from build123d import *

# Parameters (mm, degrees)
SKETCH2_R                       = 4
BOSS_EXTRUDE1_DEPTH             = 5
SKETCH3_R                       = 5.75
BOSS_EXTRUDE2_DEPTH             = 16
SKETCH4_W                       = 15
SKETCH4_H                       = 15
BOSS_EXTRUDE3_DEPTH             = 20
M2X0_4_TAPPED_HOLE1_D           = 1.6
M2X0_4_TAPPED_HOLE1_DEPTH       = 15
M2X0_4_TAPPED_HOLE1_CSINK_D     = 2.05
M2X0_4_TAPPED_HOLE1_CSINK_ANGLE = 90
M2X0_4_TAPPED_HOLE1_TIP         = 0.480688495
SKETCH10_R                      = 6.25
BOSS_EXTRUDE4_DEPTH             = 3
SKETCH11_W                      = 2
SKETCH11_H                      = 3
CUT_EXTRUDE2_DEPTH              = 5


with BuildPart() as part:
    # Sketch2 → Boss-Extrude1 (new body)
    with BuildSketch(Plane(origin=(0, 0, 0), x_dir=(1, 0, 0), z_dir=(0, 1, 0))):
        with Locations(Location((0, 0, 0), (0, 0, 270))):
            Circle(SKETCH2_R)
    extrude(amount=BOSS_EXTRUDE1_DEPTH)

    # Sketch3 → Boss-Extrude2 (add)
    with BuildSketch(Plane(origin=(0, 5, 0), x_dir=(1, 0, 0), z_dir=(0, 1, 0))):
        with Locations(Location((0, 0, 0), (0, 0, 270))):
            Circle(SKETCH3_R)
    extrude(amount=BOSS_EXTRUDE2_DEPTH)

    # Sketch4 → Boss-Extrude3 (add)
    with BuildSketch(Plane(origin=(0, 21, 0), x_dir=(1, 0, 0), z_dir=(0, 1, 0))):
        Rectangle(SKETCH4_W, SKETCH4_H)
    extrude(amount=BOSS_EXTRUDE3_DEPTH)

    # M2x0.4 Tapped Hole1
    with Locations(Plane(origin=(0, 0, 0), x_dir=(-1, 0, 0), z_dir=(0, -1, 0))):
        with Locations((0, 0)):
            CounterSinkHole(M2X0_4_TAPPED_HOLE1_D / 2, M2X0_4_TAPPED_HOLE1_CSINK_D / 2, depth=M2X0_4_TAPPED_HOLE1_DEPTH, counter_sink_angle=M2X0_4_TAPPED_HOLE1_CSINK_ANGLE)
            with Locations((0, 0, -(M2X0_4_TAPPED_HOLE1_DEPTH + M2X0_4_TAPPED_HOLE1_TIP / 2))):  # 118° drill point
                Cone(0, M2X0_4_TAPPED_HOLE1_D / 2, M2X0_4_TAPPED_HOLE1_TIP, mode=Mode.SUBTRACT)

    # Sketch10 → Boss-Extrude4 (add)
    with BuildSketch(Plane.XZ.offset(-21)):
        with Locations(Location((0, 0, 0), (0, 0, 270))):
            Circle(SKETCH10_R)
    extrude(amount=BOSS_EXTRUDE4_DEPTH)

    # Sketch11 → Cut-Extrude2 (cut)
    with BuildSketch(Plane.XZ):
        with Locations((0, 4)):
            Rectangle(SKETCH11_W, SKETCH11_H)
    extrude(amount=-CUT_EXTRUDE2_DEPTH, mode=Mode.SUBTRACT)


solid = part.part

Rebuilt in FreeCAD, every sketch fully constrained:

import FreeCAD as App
import Part
import Sketcher

V = App.Vector


def add_polygon(sketch, points):
    """Adds a closed chain of lines whose ends are joined by coincident constraints."""
    first, n = sketch.GeometryCount, len(points)
    for a, b in zip(points, points[1:] + points[:1]):
        sketch.addGeometry(Part.LineSegment(App.Vector(*a, 0), App.Vector(*b, 0)), False)
    for i in range(n):
        sketch.addConstraint(Sketcher.Constraint("Coincident", first + i, 2, first + (i + 1) % n, 1))

doc = App.newDocument("Part")
params = doc.addObject("Spreadsheet::Sheet", "Params")
for row, (alias, value) in enumerate([
    ("sketch1_diameter", "8 mm"),
    ("pad1_length", "5 mm"),
    ("sketch2_diameter", "11.5 mm"),
    ("pad2_length", "16 mm"),
    ("sketch3_width", "15 mm"),
    ("pad3_length", "20 mm"),
    ("sketch4_diameter", "1.6 mm"),
    ("hole_diameter", "1.6 mm"),
    ("hole_depth", "15 mm"),
    ("hole_csink_diameter", "2.05 mm"),
    ("sketch5_diameter", "12.5 mm"),
    ("pad4_length", "3 mm"),
    ("sketch6_width", "2 mm"),
    ("sketch6_height", "3 mm"),
    ("pocket1_length", "5 mm"),
], start=1):
    params.set(f"A{row}", alias)
    params.set(f"B{row}", "=" + value)
    params.setAlias(f"B{row}", alias)

body = doc.addObject("PartDesign::Body", "Body")

sketch1 = body.newObject("Sketcher::SketchObject", "Sketch")
sketch1.AttachmentSupport = (doc.getObject("XZ_Plane"), [""])
sketch1.MapMode = "FlatFace"
sketch1.addGeometry(Part.Circle(V(0, 0, 0), V(0, 0, 1), 4), False)
sketch1.addConstraint(Sketcher.Constraint("Coincident", 0, 3, -1, 1))
sketch1.addConstraint(Sketcher.Constraint("Diameter", 0, 8.0))
sketch1.setExpression("Constraints[1]", "Params.sketch1_diameter")
pad1 = body.newObject("PartDesign::Pad", "Pad")
pad1.Profile = sketch1
pad1.setExpression("Length", "Params.pad1_length")
pad1.Reversed = True

sketch2 = body.newObject("Sketcher::SketchObject", "Sketch001")
sketch2.AttachmentSupport = (doc.getObject("XZ_Plane"), [""])
sketch2.MapMode = "FlatFace"
sketch2.AttachmentOffset = App.Placement(V(0, 0, -5), App.Rotation())
sketch2.addGeometry(Part.Circle(V(0, 0, 0), V(0, 0, 1), 6), False)
sketch2.addConstraint(Sketcher.Constraint("Coincident", 0, 3, -1, 1))
sketch2.addConstraint(Sketcher.Constraint("Diameter", 0, 11.5))
sketch2.setExpression("Constraints[1]", "Params.sketch2_diameter")
pad2 = body.newObject("PartDesign::Pad", "Pad001")
pad2.Profile = sketch2
pad2.setExpression("Length", "Params.pad2_length")
pad2.Reversed = True

sketch3 = body.newObject("Sketcher::SketchObject", "Sketch002")
sketch3.AttachmentSupport = (doc.getObject("XZ_Plane"), [""])
sketch3.MapMode = "FlatFace"
sketch3.AttachmentOffset = App.Placement(V(0, 0, -21), App.Rotation())
add_polygon(sketch3, [(-8, -8), (-8, 8), (8, 8), (8, -8)])
sketch3.addConstraint(Sketcher.Constraint("Vertical", 0))
sketch3.addConstraint(Sketcher.Constraint("Horizontal", 1))
sketch3.addConstraint(Sketcher.Constraint("Vertical", 2))
sketch3.addConstraint(Sketcher.Constraint("Horizontal", 3))
sketch3.addConstraint(Sketcher.Constraint("Symmetric", 0, 2, 2, 2, -1, 1))
sketch3.addConstraint(Sketcher.Constraint("Equal", 3, 0))
sketch3.addConstraint(Sketcher.Constraint("DistanceX", 1, 1, 1, 2, 15.0))
sketch3.setExpression("Constraints[10]", "Params.sketch3_width")
pad3 = body.newObject("PartDesign::Pad", "Pad002")
pad3.Profile = sketch3
pad3.setExpression("Length", "Params.pad3_length")
pad3.Reversed = True

sketch4 = body.newObject("Sketcher::SketchObject", "Sketch003")
sketch4.AttachmentSupport = (doc.getObject("XZ_Plane"), [""])
sketch4.MapMode = "FlatFace"
sketch4.addGeometry(Part.Circle(V(0, 0, 0), V(0, 0, 1), 0.8), False)
sketch4.addConstraint(Sketcher.Constraint("Coincident", 0, 3, -1, 1))
sketch4.addConstraint(Sketcher.Constraint("Diameter", 0, 1.6))
sketch4.setExpression("Constraints[1]", "Params.sketch4_diameter")
doc.recompute()
hole = body.newObject("PartDesign::Hole", "Hole")
hole.Profile = sketch4
hole.ThreadType = "None"
hole.setExpression("Diameter", "Params.hole_diameter")
hole.DepthType = "Dimension"
hole.setExpression("Depth", "Params.hole_depth")
hole.DrillPoint = "Angled"
hole.DrillPointAngle = 118
hole.HoleCutType = "Countersink"
hole.setExpression("HoleCutDiameter", "Params.hole_csink_diameter")
hole.HoleCutCountersinkAngle = 90

sketch5 = body.newObject("Sketcher::SketchObject", "Sketch004")
sketch5.AttachmentSupport = (doc.getObject("XZ_Plane"), [""])
sketch5.MapMode = "FlatFace"
sketch5.AttachmentOffset = App.Placement(V(0, 0, -21), App.Rotation())
sketch5.addGeometry(Part.Circle(V(0, 0, 0), V(0, 0, 1), 6), False)
sketch5.addConstraint(Sketcher.Constraint("Coincident", 0, 3, -1, 1))
sketch5.addConstraint(Sketcher.Constraint("Diameter", 0, 12.5))
sketch5.setExpression("Constraints[1]", "Params.sketch5_diameter")
pad4 = body.newObject("PartDesign::Pad", "Pad003")
pad4.Profile = sketch5
pad4.setExpression("Length", "Params.pad4_length")

sketch6 = body.newObject("Sketcher::SketchObject", "Sketch005")
sketch6.AttachmentSupport = (doc.getObject("XZ_Plane"), [""])
sketch6.MapMode = "FlatFace"
add_polygon(sketch6, [(-1, 5.5), (-1, 2.5), (1, 2.5), (1, 5.5)])
sketch6.addConstraint(Sketcher.Constraint("Vertical", 0))
sketch6.addConstraint(Sketcher.Constraint("Horizontal", 1))
sketch6.addConstraint(Sketcher.Constraint("Vertical", 2))
sketch6.addConstraint(Sketcher.Constraint("Horizontal", 3))
sketch6.addConstraint(Sketcher.Constraint("DistanceX", 1, 1, 1, 2, 2.0))
sketch6.addConstraint(Sketcher.Constraint("DistanceY", 0, 2, 0, 1, 3.0))
sketch6.addConstraint(Sketcher.Constraint("DistanceX", 0, 2, -1, 1, 1.0))
sketch6.addConstraint(Sketcher.Constraint("DistanceY", -1, 1, 0, 2, 2.5))
sketch6.setExpression("Constraints[8]", "Params.sketch6_width")
sketch6.setExpression("Constraints[9]", "Params.sketch6_height")
pocket1 = body.newObject("PartDesign::Pocket", "Pocket")
pocket1.Profile = sketch6
pocket1.setExpression("Length", "Params.pocket1_length")

doc.recompute()
